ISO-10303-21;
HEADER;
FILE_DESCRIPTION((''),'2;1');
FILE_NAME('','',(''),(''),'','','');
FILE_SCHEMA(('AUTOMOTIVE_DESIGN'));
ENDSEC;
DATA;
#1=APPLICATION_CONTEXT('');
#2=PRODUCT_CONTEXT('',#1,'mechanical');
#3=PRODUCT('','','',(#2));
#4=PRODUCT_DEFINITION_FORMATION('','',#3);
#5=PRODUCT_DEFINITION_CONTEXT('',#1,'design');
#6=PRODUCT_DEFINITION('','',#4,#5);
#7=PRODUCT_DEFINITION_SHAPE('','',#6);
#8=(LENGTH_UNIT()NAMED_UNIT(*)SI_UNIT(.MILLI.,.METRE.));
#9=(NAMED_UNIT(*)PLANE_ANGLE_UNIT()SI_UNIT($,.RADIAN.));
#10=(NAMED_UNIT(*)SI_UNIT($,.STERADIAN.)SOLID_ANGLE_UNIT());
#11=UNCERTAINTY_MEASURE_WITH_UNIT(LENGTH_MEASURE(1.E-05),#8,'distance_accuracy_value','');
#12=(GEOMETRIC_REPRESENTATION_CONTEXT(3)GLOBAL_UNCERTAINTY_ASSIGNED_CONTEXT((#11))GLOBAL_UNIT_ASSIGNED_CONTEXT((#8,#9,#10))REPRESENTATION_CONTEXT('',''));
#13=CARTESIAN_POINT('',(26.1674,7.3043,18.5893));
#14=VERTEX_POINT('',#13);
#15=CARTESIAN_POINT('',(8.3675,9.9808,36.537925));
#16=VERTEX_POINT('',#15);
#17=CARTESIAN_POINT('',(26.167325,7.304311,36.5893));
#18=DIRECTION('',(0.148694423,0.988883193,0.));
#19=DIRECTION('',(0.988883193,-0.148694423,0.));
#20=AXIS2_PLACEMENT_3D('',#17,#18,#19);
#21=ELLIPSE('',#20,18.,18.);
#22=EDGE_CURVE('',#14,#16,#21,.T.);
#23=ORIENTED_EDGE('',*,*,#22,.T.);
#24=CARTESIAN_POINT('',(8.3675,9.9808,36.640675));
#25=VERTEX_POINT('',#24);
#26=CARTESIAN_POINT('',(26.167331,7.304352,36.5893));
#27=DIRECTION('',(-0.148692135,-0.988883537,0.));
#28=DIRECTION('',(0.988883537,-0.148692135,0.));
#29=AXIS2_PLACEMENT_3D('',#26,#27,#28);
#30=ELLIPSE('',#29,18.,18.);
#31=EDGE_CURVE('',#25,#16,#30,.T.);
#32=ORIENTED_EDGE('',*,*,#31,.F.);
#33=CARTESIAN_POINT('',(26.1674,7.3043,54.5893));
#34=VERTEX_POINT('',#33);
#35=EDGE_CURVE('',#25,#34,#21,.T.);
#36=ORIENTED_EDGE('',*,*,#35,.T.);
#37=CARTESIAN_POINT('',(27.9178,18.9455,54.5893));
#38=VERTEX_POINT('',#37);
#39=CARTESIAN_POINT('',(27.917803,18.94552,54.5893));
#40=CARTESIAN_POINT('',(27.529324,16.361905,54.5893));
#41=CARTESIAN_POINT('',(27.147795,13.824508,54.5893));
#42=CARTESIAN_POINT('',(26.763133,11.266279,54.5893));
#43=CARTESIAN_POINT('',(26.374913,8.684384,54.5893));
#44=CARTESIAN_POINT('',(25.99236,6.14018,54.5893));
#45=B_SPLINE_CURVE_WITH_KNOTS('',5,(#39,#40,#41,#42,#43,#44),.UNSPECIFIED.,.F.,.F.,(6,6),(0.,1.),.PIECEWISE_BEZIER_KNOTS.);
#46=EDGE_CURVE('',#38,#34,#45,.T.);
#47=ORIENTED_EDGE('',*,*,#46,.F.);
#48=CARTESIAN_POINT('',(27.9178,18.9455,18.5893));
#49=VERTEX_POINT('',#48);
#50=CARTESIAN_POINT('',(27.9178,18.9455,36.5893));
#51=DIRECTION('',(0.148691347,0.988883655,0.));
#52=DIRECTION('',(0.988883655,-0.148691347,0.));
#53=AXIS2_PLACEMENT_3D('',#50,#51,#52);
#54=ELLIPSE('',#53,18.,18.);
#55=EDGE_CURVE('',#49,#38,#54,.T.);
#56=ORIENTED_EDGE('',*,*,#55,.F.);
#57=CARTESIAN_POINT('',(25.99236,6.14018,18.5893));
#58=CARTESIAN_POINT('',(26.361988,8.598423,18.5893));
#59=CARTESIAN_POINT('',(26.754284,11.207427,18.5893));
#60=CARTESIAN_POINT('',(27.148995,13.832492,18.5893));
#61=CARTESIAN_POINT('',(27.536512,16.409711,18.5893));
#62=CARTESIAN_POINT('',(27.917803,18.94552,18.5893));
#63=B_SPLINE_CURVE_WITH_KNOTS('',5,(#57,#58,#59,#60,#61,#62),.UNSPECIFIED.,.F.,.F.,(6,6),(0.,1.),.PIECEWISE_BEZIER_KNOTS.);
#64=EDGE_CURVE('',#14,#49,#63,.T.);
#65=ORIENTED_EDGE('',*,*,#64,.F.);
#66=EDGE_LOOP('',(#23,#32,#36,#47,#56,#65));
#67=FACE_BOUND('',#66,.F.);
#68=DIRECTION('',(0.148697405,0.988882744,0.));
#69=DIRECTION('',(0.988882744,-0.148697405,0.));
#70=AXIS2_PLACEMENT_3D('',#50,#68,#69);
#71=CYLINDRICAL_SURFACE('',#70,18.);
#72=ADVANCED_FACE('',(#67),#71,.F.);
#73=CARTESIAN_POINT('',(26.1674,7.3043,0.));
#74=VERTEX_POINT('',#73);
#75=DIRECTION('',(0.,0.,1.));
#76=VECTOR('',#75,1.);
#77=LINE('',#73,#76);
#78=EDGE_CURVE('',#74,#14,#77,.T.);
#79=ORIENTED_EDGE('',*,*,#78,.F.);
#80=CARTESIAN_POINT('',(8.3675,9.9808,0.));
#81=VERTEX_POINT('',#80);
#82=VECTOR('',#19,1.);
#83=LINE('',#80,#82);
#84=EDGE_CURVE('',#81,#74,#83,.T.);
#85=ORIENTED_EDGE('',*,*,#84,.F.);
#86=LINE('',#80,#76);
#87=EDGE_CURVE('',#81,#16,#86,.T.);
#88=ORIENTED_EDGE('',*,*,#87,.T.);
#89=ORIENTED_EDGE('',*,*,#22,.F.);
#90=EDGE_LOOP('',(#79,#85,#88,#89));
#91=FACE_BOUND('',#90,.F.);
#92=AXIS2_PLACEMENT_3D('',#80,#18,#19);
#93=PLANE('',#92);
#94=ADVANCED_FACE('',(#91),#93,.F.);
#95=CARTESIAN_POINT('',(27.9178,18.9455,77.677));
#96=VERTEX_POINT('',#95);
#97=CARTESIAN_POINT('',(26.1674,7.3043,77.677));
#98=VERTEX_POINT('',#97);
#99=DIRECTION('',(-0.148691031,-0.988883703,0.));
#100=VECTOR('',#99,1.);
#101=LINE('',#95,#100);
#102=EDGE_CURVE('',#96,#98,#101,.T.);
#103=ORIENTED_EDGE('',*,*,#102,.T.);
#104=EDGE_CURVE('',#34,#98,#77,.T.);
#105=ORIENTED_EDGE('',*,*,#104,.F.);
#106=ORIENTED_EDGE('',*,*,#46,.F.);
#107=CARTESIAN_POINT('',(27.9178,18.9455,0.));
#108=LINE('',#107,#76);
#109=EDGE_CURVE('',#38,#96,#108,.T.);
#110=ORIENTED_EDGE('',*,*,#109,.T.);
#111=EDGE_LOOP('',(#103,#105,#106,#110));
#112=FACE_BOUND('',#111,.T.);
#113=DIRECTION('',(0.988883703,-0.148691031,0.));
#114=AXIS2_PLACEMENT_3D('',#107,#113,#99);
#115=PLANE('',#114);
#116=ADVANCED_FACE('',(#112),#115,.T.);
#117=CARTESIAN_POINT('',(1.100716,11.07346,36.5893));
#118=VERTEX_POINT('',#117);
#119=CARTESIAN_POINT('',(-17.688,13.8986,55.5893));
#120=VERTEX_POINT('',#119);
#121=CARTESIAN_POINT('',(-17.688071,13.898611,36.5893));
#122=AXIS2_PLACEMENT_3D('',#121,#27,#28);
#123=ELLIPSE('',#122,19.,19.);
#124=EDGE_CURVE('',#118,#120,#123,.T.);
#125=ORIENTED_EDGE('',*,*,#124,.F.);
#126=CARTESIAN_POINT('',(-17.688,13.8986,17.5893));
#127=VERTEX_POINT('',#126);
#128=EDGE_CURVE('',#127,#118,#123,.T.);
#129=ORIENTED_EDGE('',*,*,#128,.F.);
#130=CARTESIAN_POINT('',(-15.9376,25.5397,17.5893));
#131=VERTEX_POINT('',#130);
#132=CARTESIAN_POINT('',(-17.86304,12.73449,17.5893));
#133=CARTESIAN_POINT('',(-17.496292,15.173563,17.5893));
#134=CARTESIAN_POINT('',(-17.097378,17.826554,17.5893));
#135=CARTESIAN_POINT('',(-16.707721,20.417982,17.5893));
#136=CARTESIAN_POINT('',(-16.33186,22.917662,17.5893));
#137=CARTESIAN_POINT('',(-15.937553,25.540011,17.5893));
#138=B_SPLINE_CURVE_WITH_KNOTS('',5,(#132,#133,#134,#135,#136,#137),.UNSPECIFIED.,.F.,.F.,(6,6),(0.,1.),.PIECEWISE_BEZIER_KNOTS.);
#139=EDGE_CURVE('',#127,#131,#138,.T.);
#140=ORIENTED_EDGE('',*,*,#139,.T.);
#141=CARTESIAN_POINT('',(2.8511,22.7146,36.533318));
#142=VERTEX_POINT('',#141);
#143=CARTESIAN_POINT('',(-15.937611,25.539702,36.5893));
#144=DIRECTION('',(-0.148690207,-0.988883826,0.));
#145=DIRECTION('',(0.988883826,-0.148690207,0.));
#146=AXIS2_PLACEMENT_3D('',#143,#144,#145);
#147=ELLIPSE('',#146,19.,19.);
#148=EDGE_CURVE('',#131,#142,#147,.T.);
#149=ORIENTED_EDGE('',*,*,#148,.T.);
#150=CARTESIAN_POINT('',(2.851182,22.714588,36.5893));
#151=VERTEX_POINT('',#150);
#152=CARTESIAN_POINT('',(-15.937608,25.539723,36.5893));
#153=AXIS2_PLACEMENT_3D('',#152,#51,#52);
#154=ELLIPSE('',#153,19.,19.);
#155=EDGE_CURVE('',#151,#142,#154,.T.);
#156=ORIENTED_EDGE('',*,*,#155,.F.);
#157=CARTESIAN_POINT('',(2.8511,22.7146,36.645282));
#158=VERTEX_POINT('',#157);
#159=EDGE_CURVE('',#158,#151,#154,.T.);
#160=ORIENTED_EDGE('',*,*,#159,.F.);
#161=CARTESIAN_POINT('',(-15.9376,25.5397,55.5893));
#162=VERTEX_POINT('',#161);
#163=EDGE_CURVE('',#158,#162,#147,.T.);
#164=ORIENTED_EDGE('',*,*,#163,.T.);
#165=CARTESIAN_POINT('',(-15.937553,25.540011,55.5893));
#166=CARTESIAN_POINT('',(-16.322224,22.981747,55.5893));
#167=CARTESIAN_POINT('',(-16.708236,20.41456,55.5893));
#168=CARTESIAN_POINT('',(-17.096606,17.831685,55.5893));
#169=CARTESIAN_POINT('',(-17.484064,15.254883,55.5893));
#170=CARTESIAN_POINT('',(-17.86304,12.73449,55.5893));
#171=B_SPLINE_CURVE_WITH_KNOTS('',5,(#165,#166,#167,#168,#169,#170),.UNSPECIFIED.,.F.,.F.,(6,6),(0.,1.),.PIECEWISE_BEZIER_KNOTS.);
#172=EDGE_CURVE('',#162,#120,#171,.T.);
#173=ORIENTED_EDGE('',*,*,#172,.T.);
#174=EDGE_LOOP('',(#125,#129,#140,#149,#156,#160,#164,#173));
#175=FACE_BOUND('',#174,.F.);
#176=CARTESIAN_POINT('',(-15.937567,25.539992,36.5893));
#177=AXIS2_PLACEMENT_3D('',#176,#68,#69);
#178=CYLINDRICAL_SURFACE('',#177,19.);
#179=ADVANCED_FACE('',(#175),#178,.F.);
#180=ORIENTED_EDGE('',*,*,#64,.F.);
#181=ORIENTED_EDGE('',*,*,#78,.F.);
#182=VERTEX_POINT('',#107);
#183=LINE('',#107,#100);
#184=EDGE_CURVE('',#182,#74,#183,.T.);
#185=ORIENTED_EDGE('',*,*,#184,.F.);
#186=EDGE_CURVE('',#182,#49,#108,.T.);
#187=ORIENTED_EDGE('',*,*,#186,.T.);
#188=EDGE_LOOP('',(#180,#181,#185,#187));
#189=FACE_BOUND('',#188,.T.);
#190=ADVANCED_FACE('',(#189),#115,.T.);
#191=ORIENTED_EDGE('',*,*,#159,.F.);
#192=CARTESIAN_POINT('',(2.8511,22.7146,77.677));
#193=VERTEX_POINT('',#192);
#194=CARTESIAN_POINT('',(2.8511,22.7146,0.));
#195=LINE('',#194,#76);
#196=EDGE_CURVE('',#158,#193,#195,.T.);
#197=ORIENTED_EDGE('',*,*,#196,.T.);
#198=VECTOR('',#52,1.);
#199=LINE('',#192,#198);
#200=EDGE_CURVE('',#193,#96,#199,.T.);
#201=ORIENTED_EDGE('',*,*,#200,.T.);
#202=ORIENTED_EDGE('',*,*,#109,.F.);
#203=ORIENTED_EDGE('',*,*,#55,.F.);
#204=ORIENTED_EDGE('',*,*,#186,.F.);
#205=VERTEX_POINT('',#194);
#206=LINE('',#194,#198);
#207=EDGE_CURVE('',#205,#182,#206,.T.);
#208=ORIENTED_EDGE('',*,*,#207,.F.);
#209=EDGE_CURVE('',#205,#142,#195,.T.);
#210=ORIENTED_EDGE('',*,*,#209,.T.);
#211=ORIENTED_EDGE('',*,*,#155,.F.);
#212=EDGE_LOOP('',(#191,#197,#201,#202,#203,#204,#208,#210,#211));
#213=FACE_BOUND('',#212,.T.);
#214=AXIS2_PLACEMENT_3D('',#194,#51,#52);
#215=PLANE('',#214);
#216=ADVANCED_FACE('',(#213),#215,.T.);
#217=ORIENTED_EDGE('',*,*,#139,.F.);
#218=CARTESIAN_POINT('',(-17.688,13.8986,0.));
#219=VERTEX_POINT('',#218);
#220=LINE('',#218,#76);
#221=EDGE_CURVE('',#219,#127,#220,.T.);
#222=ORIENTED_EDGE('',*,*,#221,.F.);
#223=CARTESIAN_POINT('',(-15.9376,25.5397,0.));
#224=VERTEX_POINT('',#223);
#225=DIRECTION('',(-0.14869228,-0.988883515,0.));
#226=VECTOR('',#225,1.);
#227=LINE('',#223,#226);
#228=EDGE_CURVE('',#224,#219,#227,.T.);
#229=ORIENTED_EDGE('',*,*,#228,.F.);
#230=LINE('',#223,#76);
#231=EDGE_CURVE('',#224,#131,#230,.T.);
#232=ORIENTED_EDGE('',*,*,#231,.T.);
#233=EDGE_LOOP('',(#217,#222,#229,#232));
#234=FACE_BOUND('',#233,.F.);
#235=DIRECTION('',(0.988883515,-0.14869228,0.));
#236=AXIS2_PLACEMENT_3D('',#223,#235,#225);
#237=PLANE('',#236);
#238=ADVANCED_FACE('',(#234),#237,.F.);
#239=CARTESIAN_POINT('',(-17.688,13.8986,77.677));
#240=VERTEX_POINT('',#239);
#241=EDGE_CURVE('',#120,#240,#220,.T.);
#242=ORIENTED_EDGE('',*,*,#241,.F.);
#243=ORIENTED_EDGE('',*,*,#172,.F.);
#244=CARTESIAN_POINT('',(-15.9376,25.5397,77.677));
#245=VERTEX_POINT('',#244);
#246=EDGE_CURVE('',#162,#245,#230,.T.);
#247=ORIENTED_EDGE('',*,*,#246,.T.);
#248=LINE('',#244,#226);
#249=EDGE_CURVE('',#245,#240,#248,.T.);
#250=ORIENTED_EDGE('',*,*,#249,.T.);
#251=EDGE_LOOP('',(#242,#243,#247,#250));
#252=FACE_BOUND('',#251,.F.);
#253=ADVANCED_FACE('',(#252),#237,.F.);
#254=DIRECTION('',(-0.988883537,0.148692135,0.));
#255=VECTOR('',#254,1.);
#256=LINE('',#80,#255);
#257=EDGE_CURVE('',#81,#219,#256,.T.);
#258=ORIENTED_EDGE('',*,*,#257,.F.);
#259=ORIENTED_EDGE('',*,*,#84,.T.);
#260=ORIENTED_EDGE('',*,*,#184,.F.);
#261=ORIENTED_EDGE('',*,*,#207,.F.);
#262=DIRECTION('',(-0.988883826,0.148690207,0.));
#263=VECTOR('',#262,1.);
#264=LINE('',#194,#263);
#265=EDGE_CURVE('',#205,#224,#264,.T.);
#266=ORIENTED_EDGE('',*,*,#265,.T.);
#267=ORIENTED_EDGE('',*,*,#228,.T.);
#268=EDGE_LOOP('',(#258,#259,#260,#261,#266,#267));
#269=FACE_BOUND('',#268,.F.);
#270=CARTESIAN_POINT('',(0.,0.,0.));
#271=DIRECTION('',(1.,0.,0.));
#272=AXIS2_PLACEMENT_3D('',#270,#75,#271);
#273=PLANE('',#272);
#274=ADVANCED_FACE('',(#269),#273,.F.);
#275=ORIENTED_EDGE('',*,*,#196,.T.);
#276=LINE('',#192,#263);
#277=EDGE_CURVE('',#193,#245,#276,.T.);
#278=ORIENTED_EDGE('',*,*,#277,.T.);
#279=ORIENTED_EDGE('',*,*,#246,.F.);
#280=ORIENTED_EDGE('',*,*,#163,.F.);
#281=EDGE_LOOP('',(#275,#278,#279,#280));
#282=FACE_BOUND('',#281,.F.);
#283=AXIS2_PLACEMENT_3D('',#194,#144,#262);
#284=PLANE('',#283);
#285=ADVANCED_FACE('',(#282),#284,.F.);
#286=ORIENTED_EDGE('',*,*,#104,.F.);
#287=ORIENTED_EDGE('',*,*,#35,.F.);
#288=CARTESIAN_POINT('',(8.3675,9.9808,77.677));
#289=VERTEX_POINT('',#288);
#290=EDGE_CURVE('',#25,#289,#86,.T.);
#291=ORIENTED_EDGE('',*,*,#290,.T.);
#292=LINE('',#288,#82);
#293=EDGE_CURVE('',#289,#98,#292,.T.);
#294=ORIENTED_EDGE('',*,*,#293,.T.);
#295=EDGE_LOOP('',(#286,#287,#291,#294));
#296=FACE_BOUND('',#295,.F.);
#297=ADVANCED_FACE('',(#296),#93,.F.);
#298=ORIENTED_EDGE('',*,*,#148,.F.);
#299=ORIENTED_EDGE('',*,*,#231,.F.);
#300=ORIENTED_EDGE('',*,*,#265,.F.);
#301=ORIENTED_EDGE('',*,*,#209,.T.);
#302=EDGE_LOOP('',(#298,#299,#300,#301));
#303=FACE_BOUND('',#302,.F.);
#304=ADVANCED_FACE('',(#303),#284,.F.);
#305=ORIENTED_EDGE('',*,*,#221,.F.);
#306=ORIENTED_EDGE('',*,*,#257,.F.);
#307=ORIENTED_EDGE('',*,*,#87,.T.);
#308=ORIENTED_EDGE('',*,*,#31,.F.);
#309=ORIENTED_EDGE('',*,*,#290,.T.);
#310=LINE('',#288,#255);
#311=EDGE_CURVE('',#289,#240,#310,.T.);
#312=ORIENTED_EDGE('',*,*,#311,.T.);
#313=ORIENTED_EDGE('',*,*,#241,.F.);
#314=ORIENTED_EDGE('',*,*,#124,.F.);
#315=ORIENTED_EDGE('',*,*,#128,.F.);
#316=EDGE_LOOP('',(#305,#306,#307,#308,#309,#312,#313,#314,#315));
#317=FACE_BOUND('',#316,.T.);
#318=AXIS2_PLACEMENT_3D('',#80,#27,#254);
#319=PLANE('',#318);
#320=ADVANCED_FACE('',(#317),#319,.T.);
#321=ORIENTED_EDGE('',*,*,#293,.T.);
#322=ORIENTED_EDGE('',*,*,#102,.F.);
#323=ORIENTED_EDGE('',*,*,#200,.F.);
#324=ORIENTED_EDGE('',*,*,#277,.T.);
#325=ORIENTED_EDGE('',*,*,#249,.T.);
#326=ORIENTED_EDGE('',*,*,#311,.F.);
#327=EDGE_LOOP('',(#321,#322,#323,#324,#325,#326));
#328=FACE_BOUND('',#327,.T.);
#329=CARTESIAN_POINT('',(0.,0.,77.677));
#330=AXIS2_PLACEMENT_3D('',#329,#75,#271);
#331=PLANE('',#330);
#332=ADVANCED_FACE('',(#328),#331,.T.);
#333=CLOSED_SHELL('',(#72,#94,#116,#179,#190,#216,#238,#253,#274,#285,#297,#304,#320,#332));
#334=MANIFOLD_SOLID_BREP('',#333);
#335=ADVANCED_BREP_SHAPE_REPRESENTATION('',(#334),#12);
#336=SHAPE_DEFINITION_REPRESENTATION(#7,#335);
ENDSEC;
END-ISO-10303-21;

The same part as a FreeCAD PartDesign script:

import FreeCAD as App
import Part
import Sketcher
from FreeCAD import Vector
Q = App.Units.Quantity

doc = App.newDocument("Part")
params = doc.addObject("Spreadsheet::Sheet", "Params")
for row, (alias, value) in enumerate([
    ("sketch1_length", "18 mm"),
    ("sketch1_length2", "19 mm"),
    ("pad1_length", "77.677 mm"),
    ("sketch2_diameter", "38 mm"),
    ("sketch2_diameter2", "36 mm"),
], start=1):
    params.set(f"A{row}", alias)
    params.set(f"B{row}", "=" + value)
    params.setAlias(f"B{row}", alias)

body = doc.addObject("PartDesign::Body", "Body")

# Sketch on XY plane
sketch1 = body.newObject("Sketcher::SketchObject", "Sketch")
sketch1.AttachmentSupport = (doc.getObject("XY_Plane"), [""])
sketch1.MapMode = "FlatFace"
sketch1.addGeometry(Part.LineSegment(Vector(-18, 14, 0), Vector(8, 10, 0)), False)
sketch1.addGeometry(Part.LineSegment(Vector(8, 10, 0), Vector(26, 7, 0)), False)
sketch1.addGeometry(Part.LineSegment(Vector(26, 7, 0), Vector(28, 19, 0)), False)
sketch1.addGeometry(Part.LineSegment(Vector(28, 19, 0), Vector(3, 23, 0)), False)
sketch1.addGeometry(Part.LineSegment(Vector(3, 23, 0), Vector(-16, 26, 0)), False)
sketch1.addGeometry(Part.LineSegment(Vector(-16, 26, 0), Vector(-18, 14, 0)), False)
sketch1.addConstraint(Sketcher.Constraint("Coincident", 0, 2, 1, 1))
sketch1.addConstraint(Sketcher.Constraint("Coincident", 1, 2, 2, 1))
sketch1.addConstraint(Sketcher.Constraint("Coincident", 2, 2, 3, 1))
sketch1.addConstraint(Sketcher.Constraint("Coincident", 3, 2, 4, 1))
sketch1.addConstraint(Sketcher.Constraint("Coincident", 4, 2, 5, 1))
sketch1.addConstraint(Sketcher.Constraint("Coincident", 5, 2, 0, 1))
sketch1.addConstraint(Sketcher.Constraint("Parallel", 0, 1))
sketch1.addConstraint(Sketcher.Constraint("Perpendicular", 1, 2))
sketch1.addConstraint(Sketcher.Constraint("Perpendicular", 2, 3))
sketch1.addConstraint(Sketcher.Constraint("Parallel", 3, 4))
sketch1.addConstraint(Sketcher.Constraint("Perpendicular", 4, 5))
sketch1.addConstraint(Sketcher.Constraint("Distance", 1, 18.0))
sketch1.addConstraint(Sketcher.Constraint("Distance", 4, 19.0))
sketch1.addConstraint(Sketcher.Constraint("Angle", 0, Q("-8.5511 deg")))
sketch1.addConstraint(Sketcher.Constraint("Distance", 2, 11.772))
sketch1.addConstraint(Sketcher.Constraint("DistanceX", -1, 1, 3, 2, 2.851))
sketch1.addConstraint(Sketcher.Constraint("DistanceY", 2, 2, 3, 2, 3.769))
sketch1.addConstraint(Sketcher.Constraint("DistanceY", -1, 1, 0, 2, 9.9808))
sketch1.setExpression("Constraints[11]", "Params.sketch1_length")
sketch1.setExpression("Constraints[12]", "Params.sketch1_length2")
pad1 = body.newObject("PartDesign::Pad", "Pad")
pad1.Profile = sketch1
pad1.setExpression("Length", "Params.pad1_length")

# Sketch on an angled plane
sketch2 = body.newObject("Sketcher::SketchObject", "Sketch001")
sketch2.Placement = App.Placement(Vector(27.9178, 18.9455, 77.677), App.Rotation(Vector(0.988882744, -0.148697405, 0), Vector(0, 0, -1), Vector(0.148697405, 0.988882744, 0), "ZXY"))
sketch2.addGeometry(Part.Circle(Vector(-44, 41, 0), Vector(0, 0, 1), 19), False)
sketch2.addGeometry(Part.Circle(Vector(0, 41, 0), Vector(0, 0, 1), 18), False)
sketch2.addConstraint(Sketcher.Constraint("PointOnObject", 1, 3, -2))
sketch2.addConstraint(Sketcher.Constraint("Horizontal", 0, 3, 1, 3))
sketch2.addConstraint(Sketcher.Constraint("Diameter", 0, 38.0))
sketch2.addConstraint(Sketcher.Constraint("Diameter", 1, 36.0))
sketch2.addConstraint(Sketcher.Constraint("DistanceX", 0, 3, -1, 1, 44.3484))
sketch2.addConstraint(Sketcher.Constraint("DistanceY", -1, 1, 0, 3, 41.0877))
sketch2.setExpression("Constraints[2]", "Params.sketch2_diameter")
sketch2.setExpression("Constraints[3]", "Params.sketch2_diameter2")
pocket1 = body.newObject("PartDesign::Pocket", "Pocket")
pocket1.Profile = sketch2
pocket1.Type = "ThroughAll"

doc.recompute()
